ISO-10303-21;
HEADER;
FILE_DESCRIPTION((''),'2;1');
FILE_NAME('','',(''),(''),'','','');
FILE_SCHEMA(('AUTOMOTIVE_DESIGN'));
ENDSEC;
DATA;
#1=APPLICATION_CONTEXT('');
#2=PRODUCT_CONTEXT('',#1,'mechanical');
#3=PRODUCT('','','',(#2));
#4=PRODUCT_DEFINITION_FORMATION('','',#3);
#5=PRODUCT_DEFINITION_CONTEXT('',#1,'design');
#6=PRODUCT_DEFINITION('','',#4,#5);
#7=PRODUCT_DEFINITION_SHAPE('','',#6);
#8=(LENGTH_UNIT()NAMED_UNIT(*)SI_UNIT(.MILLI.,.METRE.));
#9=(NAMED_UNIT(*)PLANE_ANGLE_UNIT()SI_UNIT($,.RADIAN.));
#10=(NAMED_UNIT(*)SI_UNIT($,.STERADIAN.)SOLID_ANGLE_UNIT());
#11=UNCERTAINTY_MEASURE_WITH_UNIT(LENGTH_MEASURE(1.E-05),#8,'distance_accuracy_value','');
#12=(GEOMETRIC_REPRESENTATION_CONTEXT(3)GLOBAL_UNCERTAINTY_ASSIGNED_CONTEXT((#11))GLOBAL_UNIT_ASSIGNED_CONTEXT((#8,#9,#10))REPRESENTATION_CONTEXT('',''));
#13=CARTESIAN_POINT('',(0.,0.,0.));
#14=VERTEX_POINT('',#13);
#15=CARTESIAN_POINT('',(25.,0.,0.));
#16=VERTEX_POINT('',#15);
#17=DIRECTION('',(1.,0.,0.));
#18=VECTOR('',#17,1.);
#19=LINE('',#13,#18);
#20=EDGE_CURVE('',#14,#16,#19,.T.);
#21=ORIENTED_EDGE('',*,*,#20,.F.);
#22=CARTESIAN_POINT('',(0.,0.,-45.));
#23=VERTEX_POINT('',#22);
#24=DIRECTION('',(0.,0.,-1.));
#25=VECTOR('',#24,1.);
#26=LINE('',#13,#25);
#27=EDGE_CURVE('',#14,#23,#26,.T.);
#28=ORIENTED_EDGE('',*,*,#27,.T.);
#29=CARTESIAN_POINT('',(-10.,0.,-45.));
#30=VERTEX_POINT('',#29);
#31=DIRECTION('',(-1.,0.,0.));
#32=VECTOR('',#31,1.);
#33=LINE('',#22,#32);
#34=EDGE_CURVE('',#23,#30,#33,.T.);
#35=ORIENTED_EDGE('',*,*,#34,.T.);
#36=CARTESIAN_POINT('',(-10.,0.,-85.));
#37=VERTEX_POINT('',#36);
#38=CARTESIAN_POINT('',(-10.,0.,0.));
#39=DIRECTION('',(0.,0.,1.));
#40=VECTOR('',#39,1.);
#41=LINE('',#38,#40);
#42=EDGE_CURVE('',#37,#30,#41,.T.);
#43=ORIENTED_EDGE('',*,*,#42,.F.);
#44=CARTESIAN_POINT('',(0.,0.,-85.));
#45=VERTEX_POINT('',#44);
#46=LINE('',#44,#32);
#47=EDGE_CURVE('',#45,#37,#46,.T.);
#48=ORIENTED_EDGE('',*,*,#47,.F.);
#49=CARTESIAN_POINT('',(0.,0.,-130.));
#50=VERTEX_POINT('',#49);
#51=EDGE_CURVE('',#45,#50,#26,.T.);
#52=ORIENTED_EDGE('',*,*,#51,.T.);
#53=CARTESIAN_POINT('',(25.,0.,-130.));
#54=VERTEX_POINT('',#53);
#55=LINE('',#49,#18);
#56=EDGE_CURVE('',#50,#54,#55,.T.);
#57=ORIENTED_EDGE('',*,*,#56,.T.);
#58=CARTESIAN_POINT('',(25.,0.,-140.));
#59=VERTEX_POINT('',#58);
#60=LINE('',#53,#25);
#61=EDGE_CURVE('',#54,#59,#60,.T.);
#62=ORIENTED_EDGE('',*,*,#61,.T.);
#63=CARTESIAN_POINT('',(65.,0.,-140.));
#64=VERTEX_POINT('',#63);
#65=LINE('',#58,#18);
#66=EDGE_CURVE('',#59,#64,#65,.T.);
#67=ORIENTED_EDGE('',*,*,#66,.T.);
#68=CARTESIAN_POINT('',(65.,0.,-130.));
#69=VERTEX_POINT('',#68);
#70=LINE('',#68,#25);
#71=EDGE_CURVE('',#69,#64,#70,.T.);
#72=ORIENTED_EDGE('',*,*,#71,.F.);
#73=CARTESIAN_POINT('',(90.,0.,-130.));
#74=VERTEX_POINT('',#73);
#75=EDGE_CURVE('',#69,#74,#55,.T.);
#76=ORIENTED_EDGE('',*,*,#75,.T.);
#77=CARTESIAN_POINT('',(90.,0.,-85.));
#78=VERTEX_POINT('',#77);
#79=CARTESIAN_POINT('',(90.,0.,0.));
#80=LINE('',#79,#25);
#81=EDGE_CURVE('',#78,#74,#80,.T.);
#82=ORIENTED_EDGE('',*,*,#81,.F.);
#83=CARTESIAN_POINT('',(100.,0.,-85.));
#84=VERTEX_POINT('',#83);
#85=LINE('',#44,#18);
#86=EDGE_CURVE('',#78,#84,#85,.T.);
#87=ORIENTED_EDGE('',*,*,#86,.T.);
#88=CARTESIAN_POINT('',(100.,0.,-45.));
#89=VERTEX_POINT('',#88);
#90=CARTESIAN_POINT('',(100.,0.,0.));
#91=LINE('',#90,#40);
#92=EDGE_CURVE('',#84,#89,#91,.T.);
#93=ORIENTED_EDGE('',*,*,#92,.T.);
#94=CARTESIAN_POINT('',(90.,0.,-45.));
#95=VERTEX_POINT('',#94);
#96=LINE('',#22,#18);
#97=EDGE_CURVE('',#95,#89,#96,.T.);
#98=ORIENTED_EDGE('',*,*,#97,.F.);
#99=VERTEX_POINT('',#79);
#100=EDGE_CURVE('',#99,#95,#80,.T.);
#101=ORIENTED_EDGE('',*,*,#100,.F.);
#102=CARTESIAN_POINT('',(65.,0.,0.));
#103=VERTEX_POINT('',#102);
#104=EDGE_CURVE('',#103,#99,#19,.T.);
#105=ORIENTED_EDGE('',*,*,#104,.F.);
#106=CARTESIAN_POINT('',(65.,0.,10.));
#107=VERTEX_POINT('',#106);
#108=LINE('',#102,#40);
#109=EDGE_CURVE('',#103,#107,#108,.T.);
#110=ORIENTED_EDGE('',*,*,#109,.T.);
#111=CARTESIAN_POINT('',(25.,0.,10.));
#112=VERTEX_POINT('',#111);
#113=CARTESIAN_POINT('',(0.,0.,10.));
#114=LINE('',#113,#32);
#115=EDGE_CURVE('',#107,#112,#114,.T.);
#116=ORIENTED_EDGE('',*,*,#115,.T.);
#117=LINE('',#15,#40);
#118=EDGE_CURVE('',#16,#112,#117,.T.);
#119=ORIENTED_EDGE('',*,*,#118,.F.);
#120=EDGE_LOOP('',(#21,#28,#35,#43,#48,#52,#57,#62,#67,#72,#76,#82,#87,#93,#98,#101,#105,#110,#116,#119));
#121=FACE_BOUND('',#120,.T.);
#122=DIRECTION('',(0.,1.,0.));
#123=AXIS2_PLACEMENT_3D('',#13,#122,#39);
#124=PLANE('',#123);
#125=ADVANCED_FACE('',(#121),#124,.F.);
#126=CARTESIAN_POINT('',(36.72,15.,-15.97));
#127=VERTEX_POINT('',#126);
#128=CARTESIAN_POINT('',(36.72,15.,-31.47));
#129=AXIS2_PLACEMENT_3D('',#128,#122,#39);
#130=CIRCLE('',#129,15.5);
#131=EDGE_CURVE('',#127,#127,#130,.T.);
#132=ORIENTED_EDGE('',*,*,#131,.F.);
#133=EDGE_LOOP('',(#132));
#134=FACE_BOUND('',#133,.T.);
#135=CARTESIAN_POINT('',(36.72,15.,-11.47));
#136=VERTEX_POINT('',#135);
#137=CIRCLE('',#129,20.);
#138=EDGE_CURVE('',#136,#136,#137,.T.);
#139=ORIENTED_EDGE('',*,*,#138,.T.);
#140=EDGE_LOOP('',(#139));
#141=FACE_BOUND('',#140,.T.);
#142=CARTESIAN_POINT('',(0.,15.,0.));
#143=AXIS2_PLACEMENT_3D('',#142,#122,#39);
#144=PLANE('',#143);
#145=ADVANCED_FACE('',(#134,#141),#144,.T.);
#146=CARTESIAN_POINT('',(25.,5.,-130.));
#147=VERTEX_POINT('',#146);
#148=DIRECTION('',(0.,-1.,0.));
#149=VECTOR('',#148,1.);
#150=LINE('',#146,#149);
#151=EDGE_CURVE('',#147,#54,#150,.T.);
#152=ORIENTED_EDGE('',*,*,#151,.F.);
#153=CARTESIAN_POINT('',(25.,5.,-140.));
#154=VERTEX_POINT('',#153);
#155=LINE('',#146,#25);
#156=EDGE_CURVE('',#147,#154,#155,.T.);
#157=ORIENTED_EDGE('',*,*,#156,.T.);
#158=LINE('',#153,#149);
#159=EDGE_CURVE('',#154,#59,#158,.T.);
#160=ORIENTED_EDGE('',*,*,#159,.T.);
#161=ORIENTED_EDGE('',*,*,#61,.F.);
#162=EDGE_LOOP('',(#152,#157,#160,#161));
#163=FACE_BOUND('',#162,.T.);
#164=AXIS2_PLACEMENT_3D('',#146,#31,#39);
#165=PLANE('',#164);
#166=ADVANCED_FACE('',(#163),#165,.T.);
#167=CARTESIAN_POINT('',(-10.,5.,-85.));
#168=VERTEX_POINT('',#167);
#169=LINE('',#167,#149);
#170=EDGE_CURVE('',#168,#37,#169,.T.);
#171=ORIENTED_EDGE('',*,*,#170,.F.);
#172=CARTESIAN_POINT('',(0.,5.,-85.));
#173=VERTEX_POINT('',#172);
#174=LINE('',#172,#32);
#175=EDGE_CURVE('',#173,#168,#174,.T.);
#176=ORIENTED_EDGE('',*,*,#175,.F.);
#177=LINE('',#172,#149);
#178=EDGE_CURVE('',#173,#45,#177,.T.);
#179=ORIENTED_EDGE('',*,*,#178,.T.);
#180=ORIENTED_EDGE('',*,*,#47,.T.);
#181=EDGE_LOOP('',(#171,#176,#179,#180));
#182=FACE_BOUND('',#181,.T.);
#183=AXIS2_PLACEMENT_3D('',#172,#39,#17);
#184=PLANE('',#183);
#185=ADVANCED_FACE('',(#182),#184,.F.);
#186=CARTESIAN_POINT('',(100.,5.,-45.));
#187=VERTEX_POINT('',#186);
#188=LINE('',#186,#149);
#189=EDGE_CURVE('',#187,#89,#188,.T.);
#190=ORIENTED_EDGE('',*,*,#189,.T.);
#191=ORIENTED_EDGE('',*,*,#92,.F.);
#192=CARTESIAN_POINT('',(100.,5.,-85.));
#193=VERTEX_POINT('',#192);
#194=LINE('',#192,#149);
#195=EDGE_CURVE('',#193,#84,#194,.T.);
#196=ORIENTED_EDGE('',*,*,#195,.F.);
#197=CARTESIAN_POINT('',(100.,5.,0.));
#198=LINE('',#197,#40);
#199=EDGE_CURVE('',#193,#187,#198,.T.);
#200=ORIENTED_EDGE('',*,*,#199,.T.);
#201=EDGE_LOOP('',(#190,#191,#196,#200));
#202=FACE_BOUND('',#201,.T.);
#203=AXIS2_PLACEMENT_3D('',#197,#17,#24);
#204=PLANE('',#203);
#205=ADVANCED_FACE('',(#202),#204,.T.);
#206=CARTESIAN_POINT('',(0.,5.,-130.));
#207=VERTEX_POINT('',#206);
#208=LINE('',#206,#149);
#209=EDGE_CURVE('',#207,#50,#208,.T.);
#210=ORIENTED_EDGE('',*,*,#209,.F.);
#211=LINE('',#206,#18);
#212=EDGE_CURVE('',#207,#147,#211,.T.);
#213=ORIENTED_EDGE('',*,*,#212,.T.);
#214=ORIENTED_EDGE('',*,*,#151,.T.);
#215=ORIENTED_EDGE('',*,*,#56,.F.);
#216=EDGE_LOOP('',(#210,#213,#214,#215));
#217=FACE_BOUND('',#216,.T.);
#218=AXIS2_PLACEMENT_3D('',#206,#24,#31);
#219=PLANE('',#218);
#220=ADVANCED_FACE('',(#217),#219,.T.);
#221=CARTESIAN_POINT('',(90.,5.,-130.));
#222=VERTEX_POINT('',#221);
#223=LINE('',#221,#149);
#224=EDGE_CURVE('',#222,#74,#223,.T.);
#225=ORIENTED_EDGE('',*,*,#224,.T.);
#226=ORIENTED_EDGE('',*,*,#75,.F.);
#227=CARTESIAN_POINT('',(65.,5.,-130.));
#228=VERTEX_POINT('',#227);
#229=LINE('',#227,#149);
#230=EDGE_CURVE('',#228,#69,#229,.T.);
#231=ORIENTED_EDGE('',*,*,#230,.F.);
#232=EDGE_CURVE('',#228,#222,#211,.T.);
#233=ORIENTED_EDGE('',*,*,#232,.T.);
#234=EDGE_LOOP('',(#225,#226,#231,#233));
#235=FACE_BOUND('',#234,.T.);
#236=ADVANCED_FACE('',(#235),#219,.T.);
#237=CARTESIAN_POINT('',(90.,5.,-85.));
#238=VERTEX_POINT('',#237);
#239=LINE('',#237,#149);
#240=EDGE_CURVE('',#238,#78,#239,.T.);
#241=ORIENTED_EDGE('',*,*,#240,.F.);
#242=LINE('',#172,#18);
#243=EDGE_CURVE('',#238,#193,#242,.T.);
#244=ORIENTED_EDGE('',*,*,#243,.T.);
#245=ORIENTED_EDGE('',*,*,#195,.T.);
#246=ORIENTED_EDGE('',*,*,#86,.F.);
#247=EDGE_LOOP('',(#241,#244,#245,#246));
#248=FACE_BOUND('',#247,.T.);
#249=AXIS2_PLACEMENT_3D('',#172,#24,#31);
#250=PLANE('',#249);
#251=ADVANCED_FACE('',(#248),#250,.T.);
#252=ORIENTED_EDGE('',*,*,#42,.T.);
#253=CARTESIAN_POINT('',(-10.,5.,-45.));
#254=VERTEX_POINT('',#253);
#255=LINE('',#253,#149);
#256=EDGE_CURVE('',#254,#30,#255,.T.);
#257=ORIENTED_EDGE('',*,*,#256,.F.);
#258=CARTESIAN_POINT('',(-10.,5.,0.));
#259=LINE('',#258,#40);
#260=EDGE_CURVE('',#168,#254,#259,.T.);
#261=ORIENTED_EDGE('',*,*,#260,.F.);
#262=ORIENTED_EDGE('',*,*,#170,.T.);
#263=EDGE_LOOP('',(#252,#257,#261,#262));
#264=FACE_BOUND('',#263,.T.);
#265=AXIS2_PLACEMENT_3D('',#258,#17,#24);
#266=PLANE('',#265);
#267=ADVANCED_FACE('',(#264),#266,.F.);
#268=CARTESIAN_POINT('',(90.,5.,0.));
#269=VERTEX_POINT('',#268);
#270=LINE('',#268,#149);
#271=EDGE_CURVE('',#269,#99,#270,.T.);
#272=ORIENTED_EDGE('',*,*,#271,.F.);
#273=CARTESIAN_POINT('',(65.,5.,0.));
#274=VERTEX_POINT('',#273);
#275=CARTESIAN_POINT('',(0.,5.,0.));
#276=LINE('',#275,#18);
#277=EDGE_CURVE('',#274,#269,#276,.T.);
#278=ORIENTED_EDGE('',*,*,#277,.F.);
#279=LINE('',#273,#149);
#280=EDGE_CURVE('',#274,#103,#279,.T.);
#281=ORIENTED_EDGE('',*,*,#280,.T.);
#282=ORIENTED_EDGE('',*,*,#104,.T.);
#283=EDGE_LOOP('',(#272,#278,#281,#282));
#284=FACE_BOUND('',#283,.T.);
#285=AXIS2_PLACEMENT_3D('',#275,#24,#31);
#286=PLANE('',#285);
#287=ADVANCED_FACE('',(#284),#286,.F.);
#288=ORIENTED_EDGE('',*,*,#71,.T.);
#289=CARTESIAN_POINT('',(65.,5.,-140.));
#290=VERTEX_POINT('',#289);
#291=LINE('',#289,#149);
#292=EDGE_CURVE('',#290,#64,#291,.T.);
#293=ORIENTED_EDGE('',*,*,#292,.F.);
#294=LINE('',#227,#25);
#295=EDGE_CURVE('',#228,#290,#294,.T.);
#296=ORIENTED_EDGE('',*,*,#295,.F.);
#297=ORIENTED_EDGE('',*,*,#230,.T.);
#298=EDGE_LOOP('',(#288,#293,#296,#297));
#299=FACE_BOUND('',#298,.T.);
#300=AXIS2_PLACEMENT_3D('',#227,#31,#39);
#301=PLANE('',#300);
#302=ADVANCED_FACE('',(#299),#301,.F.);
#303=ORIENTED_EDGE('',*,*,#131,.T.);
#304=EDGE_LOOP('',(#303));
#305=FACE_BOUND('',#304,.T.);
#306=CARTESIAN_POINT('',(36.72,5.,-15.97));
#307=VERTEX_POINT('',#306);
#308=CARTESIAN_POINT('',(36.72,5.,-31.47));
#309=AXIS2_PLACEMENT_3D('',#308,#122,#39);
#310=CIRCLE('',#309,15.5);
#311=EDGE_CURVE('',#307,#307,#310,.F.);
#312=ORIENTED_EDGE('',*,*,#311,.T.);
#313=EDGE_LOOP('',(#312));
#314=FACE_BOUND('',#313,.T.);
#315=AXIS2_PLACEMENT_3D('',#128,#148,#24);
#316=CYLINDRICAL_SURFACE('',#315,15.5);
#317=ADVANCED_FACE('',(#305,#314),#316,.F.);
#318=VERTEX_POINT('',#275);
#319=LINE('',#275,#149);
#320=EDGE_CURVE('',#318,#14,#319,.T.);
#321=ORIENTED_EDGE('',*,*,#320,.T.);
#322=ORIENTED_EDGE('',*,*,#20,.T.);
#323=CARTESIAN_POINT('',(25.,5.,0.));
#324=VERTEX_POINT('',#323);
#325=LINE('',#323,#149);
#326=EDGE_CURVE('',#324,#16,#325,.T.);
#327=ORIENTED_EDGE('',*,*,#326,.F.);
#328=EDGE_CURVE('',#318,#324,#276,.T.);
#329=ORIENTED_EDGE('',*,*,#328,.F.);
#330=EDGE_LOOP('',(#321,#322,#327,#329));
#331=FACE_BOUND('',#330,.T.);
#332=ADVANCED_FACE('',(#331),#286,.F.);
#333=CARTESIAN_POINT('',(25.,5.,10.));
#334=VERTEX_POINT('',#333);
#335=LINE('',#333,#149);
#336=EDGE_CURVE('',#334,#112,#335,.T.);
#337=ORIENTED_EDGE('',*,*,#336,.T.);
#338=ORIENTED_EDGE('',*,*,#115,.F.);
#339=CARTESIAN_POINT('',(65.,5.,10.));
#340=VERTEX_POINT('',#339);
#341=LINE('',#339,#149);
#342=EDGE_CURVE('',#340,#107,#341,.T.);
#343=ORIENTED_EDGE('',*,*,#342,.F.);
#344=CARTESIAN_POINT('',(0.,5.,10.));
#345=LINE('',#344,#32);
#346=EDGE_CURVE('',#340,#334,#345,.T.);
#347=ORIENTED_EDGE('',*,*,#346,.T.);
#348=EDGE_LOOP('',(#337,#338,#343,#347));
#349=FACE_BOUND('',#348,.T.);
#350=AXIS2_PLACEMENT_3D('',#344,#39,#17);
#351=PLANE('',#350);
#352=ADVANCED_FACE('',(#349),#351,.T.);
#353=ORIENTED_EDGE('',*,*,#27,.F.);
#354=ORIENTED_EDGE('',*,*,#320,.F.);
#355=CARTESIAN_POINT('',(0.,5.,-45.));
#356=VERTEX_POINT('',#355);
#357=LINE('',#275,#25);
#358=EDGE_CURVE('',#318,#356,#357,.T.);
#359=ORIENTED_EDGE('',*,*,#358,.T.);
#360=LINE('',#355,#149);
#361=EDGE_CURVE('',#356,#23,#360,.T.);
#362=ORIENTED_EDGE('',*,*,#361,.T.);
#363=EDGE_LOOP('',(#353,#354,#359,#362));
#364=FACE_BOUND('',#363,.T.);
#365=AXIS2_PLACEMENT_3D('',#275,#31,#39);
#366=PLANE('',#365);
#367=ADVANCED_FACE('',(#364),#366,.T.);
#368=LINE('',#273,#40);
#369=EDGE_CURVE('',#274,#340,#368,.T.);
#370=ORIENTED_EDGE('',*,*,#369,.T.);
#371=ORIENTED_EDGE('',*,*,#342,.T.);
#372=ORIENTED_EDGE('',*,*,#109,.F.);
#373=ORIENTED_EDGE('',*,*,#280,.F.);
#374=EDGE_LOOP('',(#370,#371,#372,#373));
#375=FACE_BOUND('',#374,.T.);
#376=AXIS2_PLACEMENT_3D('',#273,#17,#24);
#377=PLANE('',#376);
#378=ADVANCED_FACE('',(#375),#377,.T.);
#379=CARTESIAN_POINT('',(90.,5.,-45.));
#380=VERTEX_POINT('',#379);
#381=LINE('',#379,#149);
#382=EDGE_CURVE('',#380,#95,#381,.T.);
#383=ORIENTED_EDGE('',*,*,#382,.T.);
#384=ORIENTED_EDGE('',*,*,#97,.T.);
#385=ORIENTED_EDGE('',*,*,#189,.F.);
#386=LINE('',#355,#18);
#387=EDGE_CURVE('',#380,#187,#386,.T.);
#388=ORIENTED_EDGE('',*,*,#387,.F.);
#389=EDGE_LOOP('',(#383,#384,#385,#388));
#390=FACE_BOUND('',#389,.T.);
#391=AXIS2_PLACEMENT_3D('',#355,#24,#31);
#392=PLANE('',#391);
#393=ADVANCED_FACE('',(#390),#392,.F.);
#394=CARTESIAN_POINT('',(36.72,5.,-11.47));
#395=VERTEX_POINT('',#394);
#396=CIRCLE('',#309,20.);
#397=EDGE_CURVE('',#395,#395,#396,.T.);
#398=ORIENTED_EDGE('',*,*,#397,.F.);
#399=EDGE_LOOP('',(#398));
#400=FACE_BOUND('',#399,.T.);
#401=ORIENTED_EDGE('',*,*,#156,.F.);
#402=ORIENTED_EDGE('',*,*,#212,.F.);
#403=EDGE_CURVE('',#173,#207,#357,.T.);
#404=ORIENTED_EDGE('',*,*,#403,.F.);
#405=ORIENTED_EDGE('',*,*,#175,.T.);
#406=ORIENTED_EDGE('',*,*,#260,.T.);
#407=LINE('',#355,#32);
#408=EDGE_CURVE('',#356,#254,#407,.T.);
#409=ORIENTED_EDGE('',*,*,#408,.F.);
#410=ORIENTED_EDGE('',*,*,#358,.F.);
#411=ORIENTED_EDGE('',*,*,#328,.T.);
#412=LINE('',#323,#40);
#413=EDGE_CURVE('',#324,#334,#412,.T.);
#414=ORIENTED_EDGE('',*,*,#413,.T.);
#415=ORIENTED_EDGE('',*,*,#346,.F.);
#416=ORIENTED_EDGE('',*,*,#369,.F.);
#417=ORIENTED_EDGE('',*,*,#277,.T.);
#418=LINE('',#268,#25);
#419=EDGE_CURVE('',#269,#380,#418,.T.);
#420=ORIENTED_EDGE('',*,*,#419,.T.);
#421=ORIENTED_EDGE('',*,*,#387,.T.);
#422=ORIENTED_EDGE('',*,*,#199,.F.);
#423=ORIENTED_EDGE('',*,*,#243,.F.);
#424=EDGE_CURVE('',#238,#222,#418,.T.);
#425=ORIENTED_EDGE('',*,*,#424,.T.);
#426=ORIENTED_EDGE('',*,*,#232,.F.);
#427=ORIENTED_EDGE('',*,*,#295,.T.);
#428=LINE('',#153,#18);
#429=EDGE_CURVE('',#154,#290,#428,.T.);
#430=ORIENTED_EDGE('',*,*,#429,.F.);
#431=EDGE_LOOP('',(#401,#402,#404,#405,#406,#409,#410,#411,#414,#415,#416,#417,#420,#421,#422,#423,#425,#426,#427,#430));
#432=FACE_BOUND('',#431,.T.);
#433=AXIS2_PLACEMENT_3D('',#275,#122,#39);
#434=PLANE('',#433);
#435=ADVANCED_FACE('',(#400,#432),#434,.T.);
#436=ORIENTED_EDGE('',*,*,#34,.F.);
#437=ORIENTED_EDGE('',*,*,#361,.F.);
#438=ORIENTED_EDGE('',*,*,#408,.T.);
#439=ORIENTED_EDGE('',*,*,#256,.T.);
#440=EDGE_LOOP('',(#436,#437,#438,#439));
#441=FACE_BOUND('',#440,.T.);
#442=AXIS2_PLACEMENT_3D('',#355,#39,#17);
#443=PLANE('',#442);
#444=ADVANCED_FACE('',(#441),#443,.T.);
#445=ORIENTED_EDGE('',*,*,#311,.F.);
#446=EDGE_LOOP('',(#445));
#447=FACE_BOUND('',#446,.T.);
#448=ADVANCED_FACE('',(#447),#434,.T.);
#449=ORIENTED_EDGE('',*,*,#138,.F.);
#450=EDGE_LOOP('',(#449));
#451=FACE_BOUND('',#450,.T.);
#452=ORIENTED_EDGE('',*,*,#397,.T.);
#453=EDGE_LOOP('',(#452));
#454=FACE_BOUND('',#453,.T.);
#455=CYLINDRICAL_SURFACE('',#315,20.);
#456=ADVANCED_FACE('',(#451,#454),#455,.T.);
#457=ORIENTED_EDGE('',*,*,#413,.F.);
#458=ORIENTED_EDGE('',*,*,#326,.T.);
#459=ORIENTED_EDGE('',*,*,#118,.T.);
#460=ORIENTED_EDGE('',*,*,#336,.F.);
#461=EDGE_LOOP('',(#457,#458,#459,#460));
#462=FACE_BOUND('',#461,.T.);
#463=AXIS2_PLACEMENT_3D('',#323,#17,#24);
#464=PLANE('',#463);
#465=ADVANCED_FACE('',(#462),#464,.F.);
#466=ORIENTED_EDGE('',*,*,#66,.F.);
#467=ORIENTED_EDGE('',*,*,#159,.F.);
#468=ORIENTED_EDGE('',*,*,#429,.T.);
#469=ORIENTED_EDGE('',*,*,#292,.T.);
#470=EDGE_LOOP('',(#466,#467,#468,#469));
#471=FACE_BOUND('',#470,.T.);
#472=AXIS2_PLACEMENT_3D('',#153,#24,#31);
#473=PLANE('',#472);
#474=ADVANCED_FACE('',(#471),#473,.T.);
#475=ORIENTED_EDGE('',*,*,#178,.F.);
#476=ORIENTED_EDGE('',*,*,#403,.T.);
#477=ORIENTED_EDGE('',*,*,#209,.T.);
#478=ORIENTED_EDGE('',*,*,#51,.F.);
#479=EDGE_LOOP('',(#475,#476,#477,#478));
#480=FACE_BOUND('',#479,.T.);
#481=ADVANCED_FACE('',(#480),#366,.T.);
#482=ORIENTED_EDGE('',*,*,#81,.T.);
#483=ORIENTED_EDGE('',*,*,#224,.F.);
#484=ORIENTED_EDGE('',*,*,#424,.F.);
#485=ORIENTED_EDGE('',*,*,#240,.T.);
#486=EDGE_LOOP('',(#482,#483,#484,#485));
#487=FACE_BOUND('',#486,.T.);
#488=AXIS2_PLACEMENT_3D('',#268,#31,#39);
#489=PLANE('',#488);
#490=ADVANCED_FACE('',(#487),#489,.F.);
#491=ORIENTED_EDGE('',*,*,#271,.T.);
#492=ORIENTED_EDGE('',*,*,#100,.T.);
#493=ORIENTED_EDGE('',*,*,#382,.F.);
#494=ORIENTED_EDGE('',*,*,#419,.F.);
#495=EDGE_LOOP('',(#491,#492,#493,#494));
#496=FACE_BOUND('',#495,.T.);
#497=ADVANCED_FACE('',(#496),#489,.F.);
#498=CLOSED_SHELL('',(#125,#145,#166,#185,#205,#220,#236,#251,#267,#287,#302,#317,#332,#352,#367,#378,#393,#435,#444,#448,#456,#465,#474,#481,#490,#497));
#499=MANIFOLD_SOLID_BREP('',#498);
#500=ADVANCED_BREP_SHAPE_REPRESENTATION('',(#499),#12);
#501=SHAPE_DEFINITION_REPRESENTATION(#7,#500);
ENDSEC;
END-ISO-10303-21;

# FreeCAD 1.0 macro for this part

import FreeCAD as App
import Part
import Sketcher
from FreeCAD import Vector


def add_polygon(sketch, points):
    """Adds a closed chain of lines whose ends are joined by coincident constraints."""
    first, n = sketch.GeometryCount, len(points)
    for a, b in zip(points, points[1:] + points[:1]):
        sketch.addGeometry(Part.LineSegment(App.Vector(*a, 0), App.Vector(*b, 0)), False)
    for i in range(n):
        sketch.addConstraint(Sketcher.Constraint("Coincident", first + i, 2, first + (i + 1) % n, 1))

doc = App.newDocument("Part")
body = doc.addObject("PartDesign::Body", "Body")

sketch1 = body.newObject("Sketcher::SketchObject", "Sketch")
sketch1.AttachmentSupport = (doc.getObject("XZ_Plane"), [""])
sketch1.MapMode = "FlatFace"
add_polygon(sketch1, [(0, -45), (0, 0), (25, 0), (25, 10), (65, 10), (65, 0), (90, 0), (90, -45), (100, -45), (100, -85), (90, -85), (90, -130), (65, -130), (65, -140), (25, -140), (25, -130), (0, -130), (0, -85), (-10, -85), (-10, -45)])
sketch1.addConstraint([
    Sketcher.Constraint("Vertical", 0),
    Sketcher.Constraint("Horizontal", 1),
    Sketcher.Constraint("Vertical", 2),
    Sketcher.Constraint("Horizontal", 3),
    Sketcher.Constraint("Vertical", 4),
    Sketcher.Constraint("Horizontal", 5),
    Sketcher.Constraint("Vertical", 6),
    Sketcher.Constraint("Horizontal", 7),
    Sketcher.Constraint("Vertical", 8),
    Sketcher.Constraint("Horizontal", 9),
    Sketcher.Constraint("Vertical", 10),
    Sketcher.Constraint("Horizontal", 11),
    Sketcher.Constraint("Vertical", 12),
    Sketcher.Constraint("Horizontal", 13),
    Sketcher.Constraint("Vertical", 14),
    Sketcher.Constraint("Horizontal", 15),
    Sketcher.Constraint("Vertical", 16),
    Sketcher.Constraint("Horizontal", 17),
    Sketcher.Constraint("Vertical", 18),
    Sketcher.Constraint("Horizontal", 19),
    Sketcher.Constraint("Coincident", 0, 2, -1, 1),
    Sketcher.Constraint("PointOnObject", 4, 2, -1),
    Sketcher.Constraint("PointOnObject", 15, 2, -2),
    Sketcher.Constraint("Horizontal", 11, 2, 14, 2),
    Sketcher.Constraint("Horizontal", 9, 2, 16, 2),
    Sketcher.Constraint("Horizontal", 7, 2, 18, 2),
    Sketcher.Constraint("Vertical", 6, 2, 9, 2),
    Sketcher.Constraint("Vertical", 4, 2, 11, 2),
    Sketcher.Constraint("Vertical", 2, 2, 13, 2),
    Sketcher.Constraint("Equal", 1, 5),
    Sketcher.Constraint("Equal", 9, 17),
    Sketcher.Constraint("Equal", 19, 2),
    Sketcher.Constraint("Equal", 13, 8),
    Sketcher.Constraint("Equal", 6, 10),
    Sketcher.Constraint("Equal", 4, 12),
    Sketcher.Constraint("DistanceX", 1, 1, 1, 2, 25.0),
    Sketcher.Constraint("DistanceX", 3, 1, 3, 2, 40.0),
    Sketcher.Constraint("DistanceX", 7, 1, 7, 2, 10.0),
    Sketcher.Constraint("DistanceY", 0, 1, 0, 2, 45.0),
])
pad1 = body.newObject("PartDesign::Pad", "Pad")
pad1.Profile = sketch1
pad1.Length = 5
pad1.Reversed = True

sketch2 = body.newObject("Sketcher::SketchObject", "Sketch001")
sketch2.AttachmentSupport = (doc.getObject("XZ_Plane"), [""])
sketch2.MapMode = "FlatFace"
sketch2.AttachmentOffset = App.Placement(Vector(0, 0, -5), App.Rotation())
sketch2.addGeometry([
    Part.Circle(Vector(36.72, -31.47, 0), Vector(0, 0, 1), 20),
    Part.Circle(Vector(36.72, -31.47, 0), Vector(0, 0, 1), 15.5),
], False)
sketch2.addConstraint([
    Sketcher.Constraint("Coincident", 1, 3, 0, 3),
    Sketcher.Constraint("Diameter", 0, 40.0),
    Sketcher.Constraint("Diameter", 1, 31.0),
    Sketcher.Constraint("DistanceX", -1, 1, 0, 3, 36.72),
    Sketcher.Constraint("DistanceY", 0, 3, -1, 1, 31.47),
])
pad2 = body.newObject("PartDesign::Pad", "Pad001")
pad2.Profile = sketch2
pad2.Length = 10
pad2.Reversed = True

doc.recompute()
